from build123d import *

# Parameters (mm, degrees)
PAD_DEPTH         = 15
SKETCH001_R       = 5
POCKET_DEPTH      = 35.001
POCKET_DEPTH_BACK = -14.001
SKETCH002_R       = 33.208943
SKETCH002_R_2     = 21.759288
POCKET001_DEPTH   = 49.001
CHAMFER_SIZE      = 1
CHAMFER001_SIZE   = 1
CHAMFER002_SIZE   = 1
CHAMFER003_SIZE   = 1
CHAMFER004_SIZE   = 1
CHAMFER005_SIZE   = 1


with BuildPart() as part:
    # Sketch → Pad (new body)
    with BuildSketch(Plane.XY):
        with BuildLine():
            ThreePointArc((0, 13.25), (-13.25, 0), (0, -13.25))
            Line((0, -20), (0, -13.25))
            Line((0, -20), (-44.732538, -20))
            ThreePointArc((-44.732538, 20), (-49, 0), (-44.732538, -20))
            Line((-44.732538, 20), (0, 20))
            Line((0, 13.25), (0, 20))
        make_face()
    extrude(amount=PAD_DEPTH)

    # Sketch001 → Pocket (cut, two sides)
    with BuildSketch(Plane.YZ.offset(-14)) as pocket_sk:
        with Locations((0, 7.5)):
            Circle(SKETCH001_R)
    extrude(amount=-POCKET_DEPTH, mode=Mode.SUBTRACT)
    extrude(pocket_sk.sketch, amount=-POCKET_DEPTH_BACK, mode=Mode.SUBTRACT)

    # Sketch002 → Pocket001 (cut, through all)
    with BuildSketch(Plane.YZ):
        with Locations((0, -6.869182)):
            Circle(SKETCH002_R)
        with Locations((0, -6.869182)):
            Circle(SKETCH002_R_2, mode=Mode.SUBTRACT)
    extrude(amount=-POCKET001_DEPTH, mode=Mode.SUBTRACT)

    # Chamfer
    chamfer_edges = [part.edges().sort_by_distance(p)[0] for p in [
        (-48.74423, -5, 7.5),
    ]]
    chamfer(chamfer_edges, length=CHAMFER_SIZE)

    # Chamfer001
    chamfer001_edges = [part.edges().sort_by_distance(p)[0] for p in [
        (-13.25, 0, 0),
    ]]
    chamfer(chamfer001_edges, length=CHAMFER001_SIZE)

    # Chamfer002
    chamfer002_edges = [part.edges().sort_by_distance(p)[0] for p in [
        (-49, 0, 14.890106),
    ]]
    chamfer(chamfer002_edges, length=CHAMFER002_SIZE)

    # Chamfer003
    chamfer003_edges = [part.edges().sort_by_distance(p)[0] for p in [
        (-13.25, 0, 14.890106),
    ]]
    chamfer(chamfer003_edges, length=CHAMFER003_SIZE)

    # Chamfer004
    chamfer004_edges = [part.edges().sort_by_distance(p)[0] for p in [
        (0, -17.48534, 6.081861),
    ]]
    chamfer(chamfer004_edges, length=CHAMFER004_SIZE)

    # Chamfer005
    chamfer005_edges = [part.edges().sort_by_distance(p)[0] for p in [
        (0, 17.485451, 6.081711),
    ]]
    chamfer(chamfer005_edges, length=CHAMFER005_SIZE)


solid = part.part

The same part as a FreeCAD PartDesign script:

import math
import FreeCAD as App
import Part
import Sketcher
from FreeCAD import Vector
Q = App.Units.Quantity


def edges_at(feature, points):
    """Names of the edges that pass closest to the given points."""
    edges = feature.Shape.Edges
    near = lambda p: min(range(len(edges)), key=lambda i: edges[i].distToShape(Part.Vertex(*p))[0])
    return sorted({f"Edge{near(p) + 1}" for p in points})

doc = App.newDocument("Part")
body = doc.addObject("PartDesign::Body", "Body")

# Sketch on XY plane
sketch1 = body.newObject("Sketcher::SketchObject", "Sketch")
sketch1.AttachmentSupport = (doc.getObject("XY_Plane"), [""])
sketch1.MapMode = "FlatFace"
sketch1.addGeometry([
    Part.ArcOfCircle(Part.Circle(Vector(0, 0, 0), Vector(0, 0, 1), 13.25), math.radians(90), math.radians(270)),  # 0
    Part.LineSegment(Vector(0, 13.25, 0), Vector(0, 20, 0)),  # 1
    Part.LineSegment(Vector(0, 20, 0), Vector(-44.732538, 20, 0)),  # 2
    Part.ArcOfCircle(Part.Circle(Vector(-0.000005, 0, 0), Vector(0, 0, 1), 48.999995), math.radians(155.910491), math.radians(204.089509)),  # 3
    Part.LineSegment(Vector(-44.732538, -20, 0), Vector(0, -20, 0)),  # 4
    Part.LineSegment(Vector(0, -20, 0), Vector(0, -13.25, 0)),  # 5
], False)
sketch1.addConstraint([
    Sketcher.Constraint("Coincident", 0, 1, 1, 1),
    Sketcher.Constraint("Coincident", 1, 2, 2, 1),
    Sketcher.Constraint("Coincident", 2, 2, 3, 1),
    Sketcher.Constraint("Coincident", 3, 2, 4, 1),
    Sketcher.Constraint("Coincident", 4, 2, 5, 1),
    Sketcher.Constraint("Coincident", 5, 2, 0, 2),
    Sketcher.Constraint("Vertical", 1),
    Sketcher.Constraint("Horizontal", 2),
    Sketcher.Constraint("Horizontal", 4),
    Sketcher.Constraint("Vertical", 5),
    Sketcher.Constraint("Coincident", 0, 3, -1, 1),
    Sketcher.Constraint("Coincident", 3, 3, -1, 1),
    Sketcher.Constraint("Symmetric", 1, 2, 4, 2, -1, 1),
    Sketcher.Constraint("PointOnObject", 0, 1, -2),
    Sketcher.Constraint("Radius", 0, Q("13.25 mm")),
    Sketcher.Constraint("DistanceY", -1, 1, 1, 2, Q("20 mm")),
    Sketcher.Constraint("Radius", 3, Q("48.999995 mm")),
])
pad1 = body.newObject("PartDesign::Pad", "Pad")
pad1.Profile = sketch1
pad1.Length = 15

# Sketch on YZ plane
sketch2 = body.newObject("Sketcher::SketchObject", "Sketch001")
sketch2.AttachmentSupport = (doc.getObject("YZ_Plane"), [""])
sketch2.MapMode = "FlatFace"
sketch2.AttachmentOffset = App.Placement(Vector(0, 0, -14), App.Rotation())
sketch2.addGeometry(Part.Circle(Vector(0, 7.5, 0), Vector(0, 0, 1), 5), False)
sketch2.addConstraint([
    Sketcher.Constraint("PointOnObject", 0, 3, -2),
    Sketcher.Constraint("Diameter", 0, Q("10 mm")),
    Sketcher.Constraint("DistanceY", -1, 1, 0, 3, Q("7.5 mm")),
])
pocket1 = body.newObject("PartDesign::Pocket", "Pocket")
pocket1.Profile = sketch2
pocket1.Type = "ThroughAll"
pocket1.Midplane = True

# Sketch on YZ plane
sketch3 = body.newObject("Sketcher::SketchObject", "Sketch002")
sketch3.AttachmentSupport = (doc.getObject("YZ_Plane"), [""])
sketch3.MapMode = "FlatFace"
sketch3.addGeometry([
    Part.Circle(Vector(0, -6.869182, 0), Vector(0, 0, 1), 33.208943),
    Part.Circle(Vector(0, -6.869182, 0), Vector(0, 0, 1), 21.759288),
], False)
sketch3.addConstraint([
    Sketcher.Constraint("Coincident", 1, 3, 0, 3),
    Sketcher.Constraint("PointOnObject", 0, 3, -2),
    Sketcher.Constraint("Diameter", 0, Q("66.417886 mm")),
    Sketcher.Constraint("Diameter", 1, Q("43.518576 mm")),
    Sketcher.Constraint("DistanceY", 0, 3, -1, 1, Q("6.869182 mm")),
])
pocket2 = body.newObject("PartDesign::Pocket", "Pocket001")
pocket2.Profile = sketch3
pocket2.Type = "ThroughAll"
doc.recompute()

chamfer = body.newObject("PartDesign::Chamfer", "Chamfer")
chamfer.Base = (pocket2, edges_at(pocket2, [(-48.744, -5, 7.5)]))
chamfer.Size = 1
doc.recompute()

chamfer2 = body.newObject("PartDesign::Chamfer", "Chamfer001")
chamfer2.Base = (chamfer, edges_at(chamfer, [(-13.25, 0, 0)]))
chamfer2.Size = 1
doc.recompute()

chamfer3 = body.newObject("PartDesign::Chamfer", "Chamfer002")
chamfer3.Base = (chamfer2, edges_at(chamfer2, [(-49, 0, 14.89)]))
chamfer3.Size = 1
doc.recompute()

chamfer4 = body.newObject("PartDesign::Chamfer", "Chamfer003")
chamfer4.Base = (chamfer3, edges_at(chamfer3, [(-13.25, 0, 14.89)]))
chamfer4.Size = 1
doc.recompute()

chamfer5 = body.newObject("PartDesign::Chamfer", "Chamfer004")
chamfer5.Base = (chamfer4, edges_at(chamfer4, [(0, -17.485, 6.082)]))
chamfer5.Size = 1
doc.recompute()

chamfer6 = body.newObject("PartDesign::Chamfer", "Chamfer005")
chamfer6.Base = (chamfer5, edges_at(chamfer5, [(0, 17.485, 6.082)]))
chamfer6.Size = 1

doc.recompute()
